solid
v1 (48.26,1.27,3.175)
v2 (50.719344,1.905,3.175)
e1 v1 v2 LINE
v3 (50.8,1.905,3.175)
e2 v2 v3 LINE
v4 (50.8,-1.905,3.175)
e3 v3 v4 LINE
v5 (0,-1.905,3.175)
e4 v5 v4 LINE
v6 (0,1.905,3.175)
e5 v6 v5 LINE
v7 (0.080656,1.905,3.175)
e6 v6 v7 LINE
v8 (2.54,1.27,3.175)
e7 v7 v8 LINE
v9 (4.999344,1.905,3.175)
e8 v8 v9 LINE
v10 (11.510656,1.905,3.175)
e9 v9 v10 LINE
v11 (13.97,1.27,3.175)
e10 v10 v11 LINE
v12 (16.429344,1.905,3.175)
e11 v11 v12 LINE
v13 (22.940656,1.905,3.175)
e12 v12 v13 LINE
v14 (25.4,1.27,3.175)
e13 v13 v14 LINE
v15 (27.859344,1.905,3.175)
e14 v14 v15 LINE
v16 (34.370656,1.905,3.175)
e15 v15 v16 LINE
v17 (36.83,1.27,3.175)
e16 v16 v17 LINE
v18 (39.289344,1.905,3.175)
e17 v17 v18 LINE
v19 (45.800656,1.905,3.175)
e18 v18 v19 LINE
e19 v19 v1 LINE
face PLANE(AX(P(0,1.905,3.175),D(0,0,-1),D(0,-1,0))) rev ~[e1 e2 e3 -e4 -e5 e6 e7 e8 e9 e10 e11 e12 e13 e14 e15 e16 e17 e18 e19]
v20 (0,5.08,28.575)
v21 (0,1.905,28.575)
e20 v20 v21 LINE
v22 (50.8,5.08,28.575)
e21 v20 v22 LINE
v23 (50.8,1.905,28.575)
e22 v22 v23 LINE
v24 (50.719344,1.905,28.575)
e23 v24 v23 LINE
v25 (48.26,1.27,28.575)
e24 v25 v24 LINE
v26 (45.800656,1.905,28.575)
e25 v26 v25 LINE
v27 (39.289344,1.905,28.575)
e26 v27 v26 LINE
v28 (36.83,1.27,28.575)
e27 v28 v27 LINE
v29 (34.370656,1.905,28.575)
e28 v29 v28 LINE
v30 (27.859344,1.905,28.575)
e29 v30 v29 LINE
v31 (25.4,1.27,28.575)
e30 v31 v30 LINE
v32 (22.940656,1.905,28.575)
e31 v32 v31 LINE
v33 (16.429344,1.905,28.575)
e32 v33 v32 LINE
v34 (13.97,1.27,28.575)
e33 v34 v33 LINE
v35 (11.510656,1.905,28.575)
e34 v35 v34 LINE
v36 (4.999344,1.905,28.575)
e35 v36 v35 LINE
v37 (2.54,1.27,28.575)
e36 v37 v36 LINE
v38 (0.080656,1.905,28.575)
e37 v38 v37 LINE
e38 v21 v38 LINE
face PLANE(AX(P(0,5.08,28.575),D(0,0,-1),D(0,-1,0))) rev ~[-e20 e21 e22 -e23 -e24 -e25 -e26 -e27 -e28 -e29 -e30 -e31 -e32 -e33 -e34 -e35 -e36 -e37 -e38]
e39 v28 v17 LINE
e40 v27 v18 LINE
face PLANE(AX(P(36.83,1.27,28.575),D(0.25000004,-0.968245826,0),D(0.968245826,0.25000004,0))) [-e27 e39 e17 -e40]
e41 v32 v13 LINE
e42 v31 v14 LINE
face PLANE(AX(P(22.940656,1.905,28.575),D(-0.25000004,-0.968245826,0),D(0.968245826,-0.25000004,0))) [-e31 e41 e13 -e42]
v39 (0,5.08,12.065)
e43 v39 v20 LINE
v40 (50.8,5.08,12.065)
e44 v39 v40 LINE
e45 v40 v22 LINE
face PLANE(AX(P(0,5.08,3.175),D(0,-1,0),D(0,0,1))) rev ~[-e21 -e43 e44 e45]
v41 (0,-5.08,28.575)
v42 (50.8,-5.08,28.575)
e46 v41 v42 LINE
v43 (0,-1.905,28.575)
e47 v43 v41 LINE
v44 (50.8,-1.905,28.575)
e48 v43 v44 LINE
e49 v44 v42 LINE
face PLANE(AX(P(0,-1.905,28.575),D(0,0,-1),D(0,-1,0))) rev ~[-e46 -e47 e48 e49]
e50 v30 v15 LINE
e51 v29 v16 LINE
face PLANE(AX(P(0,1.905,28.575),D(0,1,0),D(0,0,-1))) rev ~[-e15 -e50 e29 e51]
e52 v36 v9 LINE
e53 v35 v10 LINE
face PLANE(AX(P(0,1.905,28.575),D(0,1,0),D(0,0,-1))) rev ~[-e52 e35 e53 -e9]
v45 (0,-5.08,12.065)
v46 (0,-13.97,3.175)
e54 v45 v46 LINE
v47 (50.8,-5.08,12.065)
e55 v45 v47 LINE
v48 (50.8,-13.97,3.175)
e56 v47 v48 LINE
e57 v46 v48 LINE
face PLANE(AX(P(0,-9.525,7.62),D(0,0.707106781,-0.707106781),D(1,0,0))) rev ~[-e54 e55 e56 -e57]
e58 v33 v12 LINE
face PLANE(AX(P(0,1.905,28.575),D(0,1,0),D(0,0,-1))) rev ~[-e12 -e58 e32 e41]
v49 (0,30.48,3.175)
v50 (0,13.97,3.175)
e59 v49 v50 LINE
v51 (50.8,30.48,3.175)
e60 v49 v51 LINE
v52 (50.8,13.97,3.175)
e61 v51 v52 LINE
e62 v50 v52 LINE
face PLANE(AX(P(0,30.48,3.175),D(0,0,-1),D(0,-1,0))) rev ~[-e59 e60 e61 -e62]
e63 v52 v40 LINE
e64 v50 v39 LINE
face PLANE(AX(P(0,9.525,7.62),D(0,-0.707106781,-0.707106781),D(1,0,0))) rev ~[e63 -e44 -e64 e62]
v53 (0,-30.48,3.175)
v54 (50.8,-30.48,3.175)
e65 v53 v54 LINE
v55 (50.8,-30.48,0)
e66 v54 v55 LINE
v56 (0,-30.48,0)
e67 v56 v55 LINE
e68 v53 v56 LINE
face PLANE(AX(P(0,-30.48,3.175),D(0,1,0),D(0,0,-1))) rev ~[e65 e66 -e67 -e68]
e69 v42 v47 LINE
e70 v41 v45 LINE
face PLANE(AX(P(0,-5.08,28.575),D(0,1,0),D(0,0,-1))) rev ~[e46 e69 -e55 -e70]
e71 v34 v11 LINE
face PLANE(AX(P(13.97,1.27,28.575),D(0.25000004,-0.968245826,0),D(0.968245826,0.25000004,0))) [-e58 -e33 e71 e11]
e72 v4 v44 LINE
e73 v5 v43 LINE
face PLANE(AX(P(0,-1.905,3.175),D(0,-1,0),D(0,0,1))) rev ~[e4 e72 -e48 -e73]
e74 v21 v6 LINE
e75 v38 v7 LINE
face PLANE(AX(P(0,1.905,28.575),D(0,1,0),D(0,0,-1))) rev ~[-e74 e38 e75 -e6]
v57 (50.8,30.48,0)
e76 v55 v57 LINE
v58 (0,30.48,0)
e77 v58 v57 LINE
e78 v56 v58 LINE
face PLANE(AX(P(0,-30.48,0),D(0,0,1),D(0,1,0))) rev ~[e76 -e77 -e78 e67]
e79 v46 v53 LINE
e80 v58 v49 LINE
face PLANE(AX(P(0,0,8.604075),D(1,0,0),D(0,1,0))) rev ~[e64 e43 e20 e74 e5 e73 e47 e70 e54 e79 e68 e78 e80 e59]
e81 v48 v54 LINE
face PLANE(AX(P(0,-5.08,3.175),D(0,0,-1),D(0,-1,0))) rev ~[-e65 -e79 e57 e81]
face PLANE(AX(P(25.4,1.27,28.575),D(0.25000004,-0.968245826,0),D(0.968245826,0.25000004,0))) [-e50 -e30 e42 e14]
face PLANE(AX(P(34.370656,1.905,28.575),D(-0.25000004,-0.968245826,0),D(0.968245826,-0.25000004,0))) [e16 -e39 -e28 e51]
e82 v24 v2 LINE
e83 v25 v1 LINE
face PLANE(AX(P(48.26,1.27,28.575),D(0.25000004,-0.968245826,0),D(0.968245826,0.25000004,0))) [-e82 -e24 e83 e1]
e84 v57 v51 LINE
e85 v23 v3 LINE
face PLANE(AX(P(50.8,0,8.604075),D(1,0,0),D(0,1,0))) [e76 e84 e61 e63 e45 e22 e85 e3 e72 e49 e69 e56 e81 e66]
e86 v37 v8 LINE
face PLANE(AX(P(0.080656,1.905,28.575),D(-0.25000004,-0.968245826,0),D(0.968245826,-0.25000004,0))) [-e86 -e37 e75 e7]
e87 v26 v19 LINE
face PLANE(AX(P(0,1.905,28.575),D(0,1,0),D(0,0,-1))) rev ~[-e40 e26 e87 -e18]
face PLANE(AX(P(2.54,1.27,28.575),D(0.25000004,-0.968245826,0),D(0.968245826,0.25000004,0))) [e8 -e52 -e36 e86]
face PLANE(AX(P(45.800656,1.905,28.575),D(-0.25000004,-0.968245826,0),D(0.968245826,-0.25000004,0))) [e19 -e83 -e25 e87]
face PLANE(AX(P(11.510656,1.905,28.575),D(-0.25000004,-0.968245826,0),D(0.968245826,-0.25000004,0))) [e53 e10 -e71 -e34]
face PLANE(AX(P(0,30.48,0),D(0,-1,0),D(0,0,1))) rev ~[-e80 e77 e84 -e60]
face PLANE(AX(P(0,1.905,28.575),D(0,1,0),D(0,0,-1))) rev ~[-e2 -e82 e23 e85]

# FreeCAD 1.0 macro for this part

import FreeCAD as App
import Part
import Sketcher
from FreeCAD import Vector
Q = App.Units.Quantity


def edges_at(feature, points):
    """Names of the edges that pass closest to the given points."""
    edges = feature.Shape.Edges
    near = lambda p: min(range(len(edges)), key=lambda i: edges[i].distToShape(Part.Vertex(*p))[0])
    return sorted({f"Edge{near(p) + 1}" for p in points})


def add_polygon(sketch, points):
    """Adds a closed chain of lines whose ends are joined by coincident constraints."""
    first, n = sketch.GeometryCount, len(points)
    for a, b in zip(points, points[1:] + points[:1]):
        sketch.addGeometry(Part.LineSegment(App.Vector(*a, 0), App.Vector(*b, 0)), False)
    for i in range(n):
        sketch.addConstraint(Sketcher.Constraint("Coincident", first + i, 2, first + (i + 1) % n, 1))

doc = App.newDocument("Part")
body = doc.addObject("PartDesign::Body", "Body")

sketch1 = body.newObject("Sketcher::SketchObject", "Sketch")
sketch1.AttachmentSupport = (doc.getObject("YZ_Plane"), [""])
sketch1.MapMode = "FlatFace"
add_polygon(sketch1, [(-30.5, 0), (30.5, 0), (30.5, 3.2), (5.1, 3.2), (5.1, 28.6), (1.9, 28.6), (1.9, 3.2), (-1.9, 3.2), (-1.9, 28.6), (-5.1, 28.6), (-5.1, 3.2), (-30.5, 3.2)])
sketch1.addConstraint([
    Sketcher.Constraint("Horizontal", 0),
    Sketcher.Constraint("Vertical", 1),
    Sketcher.Constraint("Horizontal", 2),
    Sketcher.Constraint("Vertical", 3),
    Sketcher.Constraint("Horizontal", 4),
    Sketcher.Constraint("Vertical", 5),
    Sketcher.Constraint("Horizontal", 6),
    Sketcher.Constraint("Vertical", 7),
    Sketcher.Constraint("Horizontal", 8),
    Sketcher.Constraint("Vertical", 9),
    Sketcher.Constraint("Horizontal", 10),
    Sketcher.Constraint("Vertical", 11),
    Sketcher.Constraint("Symmetric", 0, 2, 11, 2, -1, 1),
    Sketcher.Constraint("Symmetric", 4, 2, 7, 2, -2),
    Sketcher.Constraint("Symmetric", 2, 2, 9, 2, -2),
    Sketcher.Constraint("Horizontal", 2, 2, 5, 2),
    Sketcher.Constraint("Equal", 8, 1),
    Sketcher.Constraint("Equal", 10, 3),
    Sketcher.Constraint("DistanceX", 2, 2, 2, 1, Q("1 in")),
    Sketcher.Constraint("DistanceX", 0, 1, 0, 2, Q("2.4 in")),
    Sketcher.Constraint("DistanceX", 6, 2, 6, 1, Q("0.15 in")),
])
pad1 = body.newObject("PartDesign::Pad", "Pad")
pad1.Profile = sketch1
pad1.Length = Q("2 in")
doc.recompute()

chamfer = body.newObject("PartDesign::Chamfer", "Chamfer")
chamfer.Base = (pad1, edges_at(pad1, [(25.4, 5.08, 3.175), (25.4, -5.08, 3.175)]))
chamfer.Size = Q("0.35 in")

sketch2 = body.newObject("Sketcher::SketchObject", "Sketch001")
sketch2.AttachmentSupport = (doc.getObject("XY_Plane"), [""])
sketch2.MapMode = "FlatFace"
sketch2.AttachmentOffset = App.Placement(Vector(0, 0, 1.125 * 25.4), App.Rotation())
add_polygon(sketch2, [(2.5, 1.3), (5, 1.9), (0.1, 1.9)])
add_polygon(sketch2, [(14, 1.3), (16.4, 1.9), (11.5, 1.9)])
add_polygon(sketch2, [(27.9, 1.9), (22.9, 1.9), (25.4, 1.3)])
add_polygon(sketch2, [(39.3, 1.9), (34.4, 1.9), (36.8, 1.3)])
add_polygon(sketch2, [(50.7, 1.9), (45.8, 1.9), (48.3, 1.3)])
sketch2.addConstraint([
    Sketcher.Constraint("Horizontal", 1),
    Sketcher.Constraint("Horizontal", 4),
    Sketcher.Constraint("Horizontal", 6),
    Sketcher.Constraint("Horizontal", 9),
    Sketcher.Constraint("Horizontal", 12),
    Sketcher.Constraint("Parallel", 0, 3),
    Sketcher.Constraint("Parallel", 2, 5),
    Sketcher.Constraint("Parallel", 5, 7),
    Sketcher.Constraint("Parallel", 3, 8),
    Sketcher.Constraint("Parallel", 7, 10),
    Sketcher.Constraint("Parallel", 8, 11),
    Sketcher.Constraint("Parallel", 10, 13),
    Sketcher.Constraint("Parallel", 11, 14),
    Sketcher.Constraint("Horizontal", 1, 2, 3, 2),
    Sketcher.Constraint("Horizontal", 2, 2, 5, 2),
    Sketcher.Constraint("Horizontal", 4, 2, 6, 2),
    Sketcher.Constraint("Horizontal", 5, 2, 7, 2),
    Sketcher.Constraint("Horizontal", 8, 2, 9, 2),
    Sketcher.Constraint("Horizontal", 7, 2, 10, 2),
    Sketcher.Constraint("Horizontal", 11, 2, 12, 2),
    Sketcher.Constraint("Horizontal", 10, 2, 13, 2),
    Sketcher.Constraint("Equal", 0, 2),
    Sketcher.Constraint("DistanceX", -1, 1, 7, 2, Q("1 in")),
    Sketcher.Constraint("Distance", 0, Q("0.1 in")),
    Sketcher.Constraint("DistanceX", -1, 1, 2, 2, Q("0.1 in")),
    Sketcher.Constraint("DistanceX", -1, 1, 13, 2, Q("1.9 in")),
    Sketcher.Constraint("DistanceY", -1, 1, 2, 2, Q("0.05 in")),
    Sketcher.Constraint("DistanceX", -1, 1, 5, 2, Q("0.55 in")),
    Sketcher.Constraint("DistanceX", -1, 1, 10, 2, Q("1.45 in")),
    Sketcher.Constraint("DistanceY", -1, 1, 0, 2, Q("0.075 in")),
])
pad2 = body.newObject("PartDesign::Pad", "Pad001")
pad2.Profile = sketch2
pad2.Type = "UpToLast"
pad2.Reversed = True

doc.recompute()
